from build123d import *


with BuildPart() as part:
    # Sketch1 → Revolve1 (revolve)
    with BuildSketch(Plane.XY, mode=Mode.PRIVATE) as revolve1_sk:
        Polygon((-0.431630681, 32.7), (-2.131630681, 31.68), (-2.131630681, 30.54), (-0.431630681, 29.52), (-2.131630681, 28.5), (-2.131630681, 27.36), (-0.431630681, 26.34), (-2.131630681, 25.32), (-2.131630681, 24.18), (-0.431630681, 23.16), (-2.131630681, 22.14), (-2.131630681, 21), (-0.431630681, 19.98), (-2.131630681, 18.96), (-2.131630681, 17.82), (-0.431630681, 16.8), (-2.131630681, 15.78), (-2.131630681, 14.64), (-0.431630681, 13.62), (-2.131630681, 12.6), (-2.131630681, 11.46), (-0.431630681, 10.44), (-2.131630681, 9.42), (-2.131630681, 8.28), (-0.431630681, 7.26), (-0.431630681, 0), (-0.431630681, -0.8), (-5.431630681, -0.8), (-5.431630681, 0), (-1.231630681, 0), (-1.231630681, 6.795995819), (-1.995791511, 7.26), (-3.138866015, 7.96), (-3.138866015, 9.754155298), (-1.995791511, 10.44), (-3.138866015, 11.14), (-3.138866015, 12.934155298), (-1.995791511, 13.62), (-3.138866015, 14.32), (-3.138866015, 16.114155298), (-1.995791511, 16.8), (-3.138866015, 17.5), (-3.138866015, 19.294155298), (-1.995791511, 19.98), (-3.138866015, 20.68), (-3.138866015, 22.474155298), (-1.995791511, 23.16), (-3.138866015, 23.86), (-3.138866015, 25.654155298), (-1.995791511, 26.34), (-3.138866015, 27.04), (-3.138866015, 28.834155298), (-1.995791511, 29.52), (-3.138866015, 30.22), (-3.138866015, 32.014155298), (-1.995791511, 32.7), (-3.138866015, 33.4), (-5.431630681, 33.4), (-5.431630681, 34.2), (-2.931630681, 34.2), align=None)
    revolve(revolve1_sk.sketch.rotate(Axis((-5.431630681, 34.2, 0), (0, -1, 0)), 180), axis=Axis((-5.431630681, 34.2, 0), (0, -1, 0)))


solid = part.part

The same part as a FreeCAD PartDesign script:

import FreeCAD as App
import Part
import Sketcher


def add_polygon(sketch, points):
    """Adds a closed chain of lines whose ends are joined by coincident constraints."""
    first, n = sketch.GeometryCount, len(points)
    for a, b in zip(points, points[1:] + points[:1]):
        sketch.addGeometry(Part.LineSegment(App.Vector(*a, 0), App.Vector(*b, 0)), False)
    for i in range(n):
        sketch.addConstraint(Sketcher.Constraint("Coincident", first + i, 2, first + (i + 1) % n, 1))

doc = App.newDocument("Part")
body = doc.addObject("PartDesign::Body", "Body")

# Sketch on XY plane
sketch1 = body.newObject("Sketcher::SketchObject", "Sketch")
sketch1.AttachmentSupport = (doc.getObject("XY_Plane"), [""])
sketch1.MapMode = "FlatFace"
add_polygon(sketch1, [(-2.1, 31.7), (-0.4, 32.7), (-2.9, 34.2), (-5.4, 34.2), (-5.4, 33.4), (-3.1, 33.4), (-2, 32.7), (-3.1, 32), (-3.1, 30.2), (-2, 29.5), (-3.1, 28.8), (-3.1, 27), (-2, 26.3), (-3.1, 25.7), (-3.1, 23.9), (-2, 23.2), (-3.1, 22.5), (-3.1, 20.7), (-2, 20), (-3.1, 19.3), (-3.1, 17.5), (-2, 16.8), (-3.1, 16.1), (-3.1, 14.3), (-2, 13.6), (-3.1, 12.9), (-3.1, 11.1), (-2, 10.4), (-3.1, 9.8), (-3.1, 8), (-2, 7.3), (-1.2, 6.8), (-1.2, 0), (-5.4, 0), (-5.4, -0.8), (-0.4, -0.8), (-0.4, 7.3), (-2.1, 8.3), (-2.1, 9.4), (-0.4, 10.4), (-2.1, 11.5), (-2.1, 12.6), (-0.4, 13.6), (-2.1, 14.6), (-2.1, 15.8), (-0.4, 16.8), (-2.1, 17.8), (-2.1, 19), (-0.4, 20), (-2.1, 21), (-2.1, 22.1), (-0.4, 23.2), (-2.1, 24.2), (-2.1, 25.3), (-0.4, 26.3), (-2.1, 27.4), (-2.1, 28.5), (-0.4, 29.5), (-2.1, 30.5)])  # lines 0-58
sketch1.addGeometry(Part.LineSegment(App.Vector(-5.4, 34.2, 0), App.Vector(-5.4, -0.8, 0)), True)  # axis
sketch1.addConstraint([
    Sketcher.Constraint("Horizontal", 2),
    Sketcher.Constraint("Vertical", 3),
    Sketcher.Constraint("Horizontal", 4),
    Sketcher.Constraint("Vertical", 7),
    Sketcher.Constraint("Vertical", 10),
    Sketcher.Constraint("Vertical", 13),
    Sketcher.Constraint("Vertical", 16),
    Sketcher.Constraint("Vertical", 19),
    Sketcher.Constraint("Vertical", 22),
    Sketcher.Constraint("Vertical", 25),
    Sketcher.Constraint("Vertical", 28),
    Sketcher.Constraint("Vertical", 31),
    Sketcher.Constraint("Horizontal", 32),
    Sketcher.Constraint("Vertical", 33),
    Sketcher.Constraint("Horizontal", 34),
    Sketcher.Constraint("Vertical", 35),
    Sketcher.Constraint("Vertical", 37),
    Sketcher.Constraint("Vertical", 40),
    Sketcher.Constraint("Vertical", 43),
    Sketcher.Constraint("Vertical", 46),
    Sketcher.Constraint("Vertical", 49),
    Sketcher.Constraint("Vertical", 52),
    Sketcher.Constraint("Vertical", 55),
    Sketcher.Constraint("Vertical", 58),
    Sketcher.Constraint("Vertical", 59),
    Sketcher.Constraint("Coincident", 59, 1, 2, 2),
    Sketcher.Constraint("Coincident", 59, 2, 33, 2),
    Sketcher.Constraint("PointOnObject", 31, 2, -1),
    Sketcher.Constraint("Parallel", 0, 6),
    Sketcher.Constraint("Parallel", 5, 8),
    Sketcher.Constraint("Parallel", 6, 9),
    Sketcher.Constraint("Parallel", 8, 11),
    Sketcher.Constraint("Parallel", 9, 12),
    Sketcher.Constraint("Parallel", 11, 14),
    Sketcher.Constraint("Parallel", 12, 15),
    Sketcher.Constraint("Parallel", 14, 17),
    Sketcher.Constraint("Parallel", 15, 18),
    Sketcher.Constraint("Parallel", 17, 20),
    Sketcher.Constraint("Parallel", 18, 21),
    Sketcher.Constraint("Parallel", 20, 23),
    Sketcher.Constraint("Parallel", 21, 24),
    Sketcher.Constraint("Parallel", 23, 26),
    Sketcher.Constraint("Parallel", 24, 27),
    Sketcher.Constraint("Parallel", 26, 29),
    Sketcher.Constraint("Parallel", 1, 36),
    Sketcher.Constraint("Parallel", 27, 38),
    Sketcher.Constraint("Parallel", 36, 39),
    Sketcher.Constraint("Parallel", 38, 41),
    Sketcher.Constraint("Parallel", 39, 42),
    Sketcher.Constraint("Parallel", 41, 44),
    Sketcher.Constraint("Parallel", 42, 45),
    Sketcher.Constraint("Parallel", 44, 47),
    Sketcher.Constraint("Parallel", 45, 48),
    Sketcher.Constraint("Parallel", 47, 50),
    Sketcher.Constraint("Parallel", 48, 51),
    Sketcher.Constraint("Parallel", 50, 53),
    Sketcher.Constraint("Parallel", 51, 54),
    Sketcher.Constraint("Parallel", 53, 56),
    Sketcher.Constraint("Parallel", 54, 57),
    Sketcher.Constraint("Horizontal", 0, 2, 5, 2),
    Sketcher.Constraint("Horizontal", 29, 2, 35, 2),
    Sketcher.Constraint("Horizontal", 26, 2, 38, 2),
    Sketcher.Constraint("Horizontal", 23, 2, 41, 2),
    Sketcher.Constraint("Horizontal", 20, 2, 44, 2),
    Sketcher.Constraint("Horizontal", 17, 2, 47, 2),
    Sketcher.Constraint("Horizontal", 14, 2, 50, 2),
    Sketcher.Constraint("Horizontal", 11, 2, 53, 2),
    Sketcher.Constraint("Horizontal", 8, 2, 56, 2),
    Sketcher.Constraint("Vertical", 4, 2, 6, 2),
    Sketcher.Constraint("Vertical", 5, 2, 8, 2),
    Sketcher.Constraint("Vertical", 7, 2, 9, 2),
    Sketcher.Constraint("Vertical", 8, 2, 11, 2),
    Sketcher.Constraint("Vertical", 10, 2, 12, 2),
    Sketcher.Constraint("Vertical", 11, 2, 14, 2),
    Sketcher.Constraint("Vertical", 13, 2, 15, 2),
    Sketcher.Constraint("Vertical", 14, 2, 17, 2),
    Sketcher.Constraint("Vertical", 16, 2, 18, 2),
    Sketcher.Constraint("Vertical", 17, 2, 20, 2),
    Sketcher.Constraint("Vertical", 19, 2, 21, 2),
    Sketcher.Constraint("Vertical", 20, 2, 23, 2),
    Sketcher.Constraint("Vertical", 22, 2, 24, 2),
    Sketcher.Constraint("Vertical", 23, 2, 26, 2),
    Sketcher.Constraint("Vertical", 25, 2, 27, 2),
    Sketcher.Constraint("Vertical", 26, 2, 29, 2),
    Sketcher.Constraint("Vertical", 0, 2, 34, 2),
    Sketcher.Constraint("Vertical", 35, 2, 38, 2),
    Sketcher.Constraint("Vertical", 37, 2, 39, 2),
    Sketcher.Constraint("Vertical", 38, 2, 41, 2),
    Sketcher.Constraint("Vertical", 40, 2, 42, 2),
    Sketcher.Constraint("Vertical", 41, 2, 44, 2),
    Sketcher.Constraint("Vertical", 43, 2, 45, 2),
    Sketcher.Constraint("Vertical", 44, 2, 47, 2),
    Sketcher.Constraint("Vertical", 46, 2, 48, 2),
    Sketcher.Constraint("Vertical", 47, 2, 50, 2),
    Sketcher.Constraint("Vertical", 49, 2, 51, 2),
    Sketcher.Constraint("Vertical", 50, 2, 53, 2),
    Sketcher.Constraint("Vertical", 52, 2, 54, 2),
    Sketcher.Constraint("Vertical", 53, 2, 56, 2),
    Sketcher.Constraint("Vertical", 55, 2, 57, 2),
    Sketcher.Constraint("Equal", 7, 10),
    Sketcher.Constraint("Equal", 10, 13),
    Sketcher.Constraint("Equal", 13, 16),
    Sketcher.Constraint("Equal", 16, 19),
    Sketcher.Constraint("Equal", 19, 22),
    Sketcher.Constraint("Equal", 22, 25),
    Sketcher.Constraint("Equal", 25, 28),
    Sketcher.Constraint("Equal", 3, 33),
    Sketcher.Constraint("Equal", 0, 36),
    Sketcher.Constraint("DistanceX", 34, 1, 34, 2, 5.0),
    Sketcher.Constraint("DistanceY", 59, 2, 59, 1, 35.0),
    Sketcher.Constraint("DistanceX", 2, 2, 2, 1, 2.5),
    Sketcher.Constraint("DistanceX", 32, 2, 32, 1, 4.2),
    Sketcher.Constraint("DistanceY", 3, 2, 3, 1, 0.8),
    Sketcher.Constraint("DistanceY", -1, 1, 48, 2, 21.0),
    Sketcher.Constraint("DistanceY", 35, 1, 35, 2, 8.06),
    Sketcher.Constraint("DistanceY", 37, 1, 37, 2, 1.14),
    Sketcher.Constraint("Distance", 5, 1.34038),
    Sketcher.Constraint("DistanceX", 4, 1, 4, 2, 2.292765),
    Sketcher.Constraint("DistanceY", 31, 2, 31, 1, 6.795996),
    Sketcher.Constraint("DistanceX", 0, 2, -1, 1, 0.431631),
])
revolution = body.newObject("PartDesign::Revolution", "Revolution")
revolution.Profile = sketch1
revolution.ReferenceAxis = (sketch1, ["Axis0"])
revolution.Angle = 360

doc.recompute()
